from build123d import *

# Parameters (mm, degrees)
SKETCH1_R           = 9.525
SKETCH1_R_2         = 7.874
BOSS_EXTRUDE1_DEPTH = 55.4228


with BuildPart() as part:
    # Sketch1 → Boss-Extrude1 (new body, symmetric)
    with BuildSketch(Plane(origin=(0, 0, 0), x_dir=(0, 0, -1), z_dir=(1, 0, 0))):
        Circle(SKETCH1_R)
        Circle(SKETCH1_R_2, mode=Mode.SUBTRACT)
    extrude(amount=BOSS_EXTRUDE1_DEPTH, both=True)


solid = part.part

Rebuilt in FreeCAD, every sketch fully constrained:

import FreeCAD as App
import Part
import Sketcher
from FreeCAD import Vector
Q = App.Units.Quantity

doc = App.newDocument("Part")
body = doc.addObject("PartDesign::Body", "Body")

# Sketch on YZ plane
sketch1 = body.newObject("Sketcher::SketchObject", "Sketch")
sketch1.AttachmentSupport = (doc.getObject("YZ_Plane"), [""])
sketch1.MapMode = "FlatFace"
sketch1.addGeometry([
    Part.Circle(Vector(0, 0, 0), Vector(0, 0, 1), 10),
    Part.Circle(Vector(0, 0, 0), Vector(0, 0, 1), 8),
], False)
sketch1.addConstraint([
    Sketcher.Constraint("Coincident", 0, 3, -1, 1),
    Sketcher.Constraint("Coincident", 1, 3, -1, 1),
    Sketcher.Constraint("Diameter", 0, Q("0.75 in")),
    Sketcher.Constraint("Diameter", 1, Q("0.62 in")),
])
pad1 = body.newObject("PartDesign::Pad", "Pad")
pad1.Profile = sketch1
pad1.Length = Q("4.364 in")
pad1.Midplane = True

doc.recompute()
